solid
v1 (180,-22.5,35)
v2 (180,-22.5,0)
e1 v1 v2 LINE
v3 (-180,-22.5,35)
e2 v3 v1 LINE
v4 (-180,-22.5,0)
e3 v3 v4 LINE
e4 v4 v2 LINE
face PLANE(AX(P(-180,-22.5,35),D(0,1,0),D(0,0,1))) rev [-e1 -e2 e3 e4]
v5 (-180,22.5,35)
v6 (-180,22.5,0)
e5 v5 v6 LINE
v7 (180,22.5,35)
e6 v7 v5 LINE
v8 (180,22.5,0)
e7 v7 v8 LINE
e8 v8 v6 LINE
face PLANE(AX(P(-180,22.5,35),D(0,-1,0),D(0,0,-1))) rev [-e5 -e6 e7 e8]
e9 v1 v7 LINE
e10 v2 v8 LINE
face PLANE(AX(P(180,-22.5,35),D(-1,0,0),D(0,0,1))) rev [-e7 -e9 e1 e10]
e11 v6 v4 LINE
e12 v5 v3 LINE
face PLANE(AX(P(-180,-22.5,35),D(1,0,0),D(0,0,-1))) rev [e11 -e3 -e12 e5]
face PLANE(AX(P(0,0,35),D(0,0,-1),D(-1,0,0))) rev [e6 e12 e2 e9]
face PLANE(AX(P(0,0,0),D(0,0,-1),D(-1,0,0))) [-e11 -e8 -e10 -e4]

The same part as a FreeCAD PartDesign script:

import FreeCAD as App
import Part
import Sketcher
from FreeCAD import Vector


def add_polygon(sketch, points):
    """Adds a closed chain of lines whose ends are joined by coincident constraints."""
    first, n = sketch.GeometryCount, len(points)
    for a, b in zip(points, points[1:] + points[:1]):
        sketch.addGeometry(Part.LineSegment(App.Vector(*a, 0), App.Vector(*b, 0)), False)
    for i in range(n):
        sketch.addConstraint(Sketcher.Constraint("Coincident", first + i, 2, first + (i + 1) % n, 1))

doc = App.newDocument("Part")
body = doc.addObject("PartDesign::Body", "Body")

# Sketch on XY plane
sketch1 = body.newObject("Sketcher::SketchObject", "Sketch")
sketch1.AttachmentSupport = (doc.getObject("XY_Plane"), [""])
sketch1.MapMode = "FlatFace"
add_polygon(sketch1, [(-180, 22), (-180, -22), (180, -22), (180, 22)])  # lines 0-3
sketch1.addConstraint(Sketcher.Constraint("Vertical", 0))
sketch1.addConstraint(Sketcher.Constraint("Horizontal", 1))
sketch1.addConstraint(Sketcher.Constraint("Vertical", 2))
sketch1.addConstraint(Sketcher.Constraint("Horizontal", 3))
sketch1.addConstraint(Sketcher.Constraint("Symmetric", 0, 2, 2, 2, -1, 1))
sketch1.addConstraint(Sketcher.Constraint("DistanceX", 1, 1, 1, 2, 360.0))
sketch1.addConstraint(Sketcher.Constraint("DistanceY", 0, 2, 0, 1, 45.0))
pad1 = body.newObject("PartDesign::Pad", "Pad")
pad1.Profile = sketch1
pad1.Length = 35

doc.recompute()
